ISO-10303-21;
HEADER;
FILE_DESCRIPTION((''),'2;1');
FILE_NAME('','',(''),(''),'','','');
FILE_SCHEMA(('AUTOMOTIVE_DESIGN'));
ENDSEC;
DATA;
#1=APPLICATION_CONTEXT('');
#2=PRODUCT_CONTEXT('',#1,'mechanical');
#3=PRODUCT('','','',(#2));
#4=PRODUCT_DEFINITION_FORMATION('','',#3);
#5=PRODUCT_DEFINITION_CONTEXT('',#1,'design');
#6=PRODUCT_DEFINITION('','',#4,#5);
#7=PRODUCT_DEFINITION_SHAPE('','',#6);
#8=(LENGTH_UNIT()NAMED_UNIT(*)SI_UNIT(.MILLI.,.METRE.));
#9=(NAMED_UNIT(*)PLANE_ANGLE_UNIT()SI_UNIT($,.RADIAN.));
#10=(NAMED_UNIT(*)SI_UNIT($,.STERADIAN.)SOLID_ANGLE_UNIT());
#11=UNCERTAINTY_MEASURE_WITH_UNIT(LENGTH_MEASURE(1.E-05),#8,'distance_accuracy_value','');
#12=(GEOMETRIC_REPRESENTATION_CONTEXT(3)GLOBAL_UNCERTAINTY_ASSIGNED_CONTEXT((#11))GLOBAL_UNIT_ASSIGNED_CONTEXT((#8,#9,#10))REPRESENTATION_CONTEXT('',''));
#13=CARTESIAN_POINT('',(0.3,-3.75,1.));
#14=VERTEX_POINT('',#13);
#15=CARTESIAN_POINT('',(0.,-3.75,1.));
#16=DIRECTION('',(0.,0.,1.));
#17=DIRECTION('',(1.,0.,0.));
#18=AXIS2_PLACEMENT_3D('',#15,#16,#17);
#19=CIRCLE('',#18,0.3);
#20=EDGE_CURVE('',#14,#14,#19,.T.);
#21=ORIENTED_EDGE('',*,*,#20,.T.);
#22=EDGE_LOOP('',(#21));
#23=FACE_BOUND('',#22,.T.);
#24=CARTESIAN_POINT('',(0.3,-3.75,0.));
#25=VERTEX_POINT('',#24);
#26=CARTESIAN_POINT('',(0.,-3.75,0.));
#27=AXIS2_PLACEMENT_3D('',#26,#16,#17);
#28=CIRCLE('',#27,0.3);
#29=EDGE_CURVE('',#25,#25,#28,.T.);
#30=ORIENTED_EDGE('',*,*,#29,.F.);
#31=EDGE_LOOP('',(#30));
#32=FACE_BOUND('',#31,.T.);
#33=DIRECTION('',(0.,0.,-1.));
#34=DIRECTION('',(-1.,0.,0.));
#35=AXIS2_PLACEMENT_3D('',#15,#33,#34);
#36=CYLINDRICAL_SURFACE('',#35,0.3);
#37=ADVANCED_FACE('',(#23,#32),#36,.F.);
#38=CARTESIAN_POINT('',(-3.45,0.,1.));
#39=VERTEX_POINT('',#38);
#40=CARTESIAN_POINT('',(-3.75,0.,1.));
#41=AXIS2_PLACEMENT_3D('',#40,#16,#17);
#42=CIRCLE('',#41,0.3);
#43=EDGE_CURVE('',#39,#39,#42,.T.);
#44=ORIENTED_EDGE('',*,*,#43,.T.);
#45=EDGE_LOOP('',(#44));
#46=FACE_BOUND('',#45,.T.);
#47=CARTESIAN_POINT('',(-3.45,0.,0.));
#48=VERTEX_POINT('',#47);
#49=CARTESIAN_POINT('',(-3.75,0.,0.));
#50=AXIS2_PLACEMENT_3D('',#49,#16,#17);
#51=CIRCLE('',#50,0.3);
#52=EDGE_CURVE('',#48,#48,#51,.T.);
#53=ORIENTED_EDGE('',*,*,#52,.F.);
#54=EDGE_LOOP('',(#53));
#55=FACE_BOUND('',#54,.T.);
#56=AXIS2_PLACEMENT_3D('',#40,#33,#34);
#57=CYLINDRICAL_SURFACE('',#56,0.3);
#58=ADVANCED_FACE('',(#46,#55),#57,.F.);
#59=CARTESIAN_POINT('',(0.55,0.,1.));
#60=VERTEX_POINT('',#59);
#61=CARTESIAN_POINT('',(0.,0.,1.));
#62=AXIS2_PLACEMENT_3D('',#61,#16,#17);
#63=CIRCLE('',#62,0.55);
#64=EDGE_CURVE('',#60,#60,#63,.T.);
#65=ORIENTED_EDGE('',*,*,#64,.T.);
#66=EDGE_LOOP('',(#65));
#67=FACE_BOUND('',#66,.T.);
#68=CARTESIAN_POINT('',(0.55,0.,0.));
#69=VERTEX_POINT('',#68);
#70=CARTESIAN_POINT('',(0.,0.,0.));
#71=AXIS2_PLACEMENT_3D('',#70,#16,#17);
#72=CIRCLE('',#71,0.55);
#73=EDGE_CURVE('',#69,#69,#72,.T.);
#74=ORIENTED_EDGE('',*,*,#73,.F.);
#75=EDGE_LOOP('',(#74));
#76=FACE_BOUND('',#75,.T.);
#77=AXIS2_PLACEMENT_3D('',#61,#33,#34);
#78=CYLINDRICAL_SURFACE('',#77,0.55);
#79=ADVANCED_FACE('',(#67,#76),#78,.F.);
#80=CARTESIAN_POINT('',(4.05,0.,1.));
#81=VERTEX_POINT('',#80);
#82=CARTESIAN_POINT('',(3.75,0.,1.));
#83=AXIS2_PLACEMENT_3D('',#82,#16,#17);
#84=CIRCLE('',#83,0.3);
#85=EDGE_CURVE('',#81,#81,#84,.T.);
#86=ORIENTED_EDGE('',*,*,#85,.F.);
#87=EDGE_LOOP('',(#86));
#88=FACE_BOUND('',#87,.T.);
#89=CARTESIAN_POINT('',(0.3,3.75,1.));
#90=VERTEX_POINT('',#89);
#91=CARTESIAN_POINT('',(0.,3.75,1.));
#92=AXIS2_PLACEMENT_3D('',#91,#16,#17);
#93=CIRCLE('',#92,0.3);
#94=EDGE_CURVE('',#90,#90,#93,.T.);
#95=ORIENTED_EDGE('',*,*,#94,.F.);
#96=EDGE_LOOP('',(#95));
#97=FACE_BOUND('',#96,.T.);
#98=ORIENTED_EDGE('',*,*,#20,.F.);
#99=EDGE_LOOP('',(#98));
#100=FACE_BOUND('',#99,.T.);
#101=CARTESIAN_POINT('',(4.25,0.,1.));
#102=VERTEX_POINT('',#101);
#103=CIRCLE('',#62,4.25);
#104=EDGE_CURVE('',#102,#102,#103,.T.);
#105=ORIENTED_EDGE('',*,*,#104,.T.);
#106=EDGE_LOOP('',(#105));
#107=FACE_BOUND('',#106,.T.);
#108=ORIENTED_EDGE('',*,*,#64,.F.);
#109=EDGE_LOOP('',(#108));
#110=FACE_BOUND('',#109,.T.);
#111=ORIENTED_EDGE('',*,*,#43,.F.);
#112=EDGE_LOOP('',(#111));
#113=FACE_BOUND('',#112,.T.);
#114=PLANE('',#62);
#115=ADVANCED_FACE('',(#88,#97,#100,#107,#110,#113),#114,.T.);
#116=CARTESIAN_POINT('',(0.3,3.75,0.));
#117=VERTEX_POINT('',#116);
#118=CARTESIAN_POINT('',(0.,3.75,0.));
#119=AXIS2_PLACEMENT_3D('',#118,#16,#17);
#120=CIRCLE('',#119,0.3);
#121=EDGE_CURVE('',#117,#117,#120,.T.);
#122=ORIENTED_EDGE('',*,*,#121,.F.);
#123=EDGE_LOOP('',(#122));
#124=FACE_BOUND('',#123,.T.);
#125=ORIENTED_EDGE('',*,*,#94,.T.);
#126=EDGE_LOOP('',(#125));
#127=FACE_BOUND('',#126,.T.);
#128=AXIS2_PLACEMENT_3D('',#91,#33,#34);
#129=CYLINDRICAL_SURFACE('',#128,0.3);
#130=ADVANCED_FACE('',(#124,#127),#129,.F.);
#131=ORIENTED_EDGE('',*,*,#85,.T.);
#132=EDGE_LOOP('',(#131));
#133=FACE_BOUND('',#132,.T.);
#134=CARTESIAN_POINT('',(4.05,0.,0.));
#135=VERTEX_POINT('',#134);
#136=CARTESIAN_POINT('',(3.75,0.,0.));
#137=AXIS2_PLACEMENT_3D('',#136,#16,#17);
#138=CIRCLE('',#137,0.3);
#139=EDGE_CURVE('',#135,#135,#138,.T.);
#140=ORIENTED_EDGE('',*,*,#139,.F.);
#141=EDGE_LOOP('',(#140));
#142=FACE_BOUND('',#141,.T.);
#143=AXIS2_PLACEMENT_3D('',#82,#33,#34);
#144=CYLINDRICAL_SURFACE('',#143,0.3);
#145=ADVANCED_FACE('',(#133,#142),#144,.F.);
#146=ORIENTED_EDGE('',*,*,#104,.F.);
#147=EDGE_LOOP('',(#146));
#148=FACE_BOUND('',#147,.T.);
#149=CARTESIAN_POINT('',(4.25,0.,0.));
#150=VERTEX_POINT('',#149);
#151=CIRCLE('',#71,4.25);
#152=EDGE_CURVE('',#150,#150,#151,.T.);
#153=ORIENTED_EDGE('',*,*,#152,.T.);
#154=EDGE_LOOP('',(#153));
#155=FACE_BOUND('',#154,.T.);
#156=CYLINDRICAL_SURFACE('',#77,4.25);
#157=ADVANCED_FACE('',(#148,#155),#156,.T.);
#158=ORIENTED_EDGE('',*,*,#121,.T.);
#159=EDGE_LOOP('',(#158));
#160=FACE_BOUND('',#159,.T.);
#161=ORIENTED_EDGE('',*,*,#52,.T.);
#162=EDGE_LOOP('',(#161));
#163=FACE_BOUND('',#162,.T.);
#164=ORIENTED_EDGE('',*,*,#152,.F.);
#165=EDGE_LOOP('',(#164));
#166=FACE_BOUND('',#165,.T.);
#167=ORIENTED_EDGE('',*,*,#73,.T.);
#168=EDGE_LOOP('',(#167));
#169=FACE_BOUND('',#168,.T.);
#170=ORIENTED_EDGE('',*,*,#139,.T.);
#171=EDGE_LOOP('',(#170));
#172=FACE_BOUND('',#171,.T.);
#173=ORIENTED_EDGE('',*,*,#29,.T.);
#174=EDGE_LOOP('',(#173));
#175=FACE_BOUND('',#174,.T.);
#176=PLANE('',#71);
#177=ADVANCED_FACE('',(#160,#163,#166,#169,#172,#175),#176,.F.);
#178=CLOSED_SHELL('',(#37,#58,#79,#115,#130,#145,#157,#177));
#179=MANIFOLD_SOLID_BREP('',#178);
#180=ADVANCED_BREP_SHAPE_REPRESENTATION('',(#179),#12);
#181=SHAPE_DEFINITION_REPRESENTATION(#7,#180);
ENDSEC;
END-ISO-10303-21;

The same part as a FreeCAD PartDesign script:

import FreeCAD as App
import Part
import Sketcher

V = App.Vector
Q = App.Units.Quantity

doc = App.newDocument("Part")
body = doc.addObject("PartDesign::Body", "Body")

# Sketch on XY plane
sketch1 = body.newObject("Sketcher::SketchObject", "Sketch")
sketch1.AttachmentSupport = (doc.getObject("XY_Plane"), [""])
sketch1.MapMode = "FlatFace"
sketch1.addGeometry(Part.Circle(V(0, 0, 0), V(0, 0, 1), 4.25), False)
sketch1.addGeometry(Part.Circle(V(0, -3.75, 0), V(0, 0, 1), 0.3), False)
sketch1.addGeometry(Part.Circle(V(-3.75, 0, 0), V(0, 0, 1), 0.3), False)
sketch1.addGeometry(Part.Circle(V(0, 0, 0), V(0, 0, 1), 0.55), False)
sketch1.addGeometry(Part.Circle(V(0, 3.75, 0), V(0, 0, 1), 0.3), False)
sketch1.addGeometry(Part.Circle(V(3.75, 0, 0), V(0, 0, 1), 0.3), False)
sketch1.addConstraint(Sketcher.Constraint("Coincident", 0, 3, -1, 1))
sketch1.addConstraint(Sketcher.Constraint("Coincident", 3, 3, -1, 1))
sketch1.addConstraint(Sketcher.Constraint("Equal", 1, 2))
sketch1.addConstraint(Sketcher.Constraint("Equal", 2, 4))
sketch1.addConstraint(Sketcher.Constraint("Equal", 4, 5))
sketch1.addConstraint(Sketcher.Constraint("Symmetric", 1, 3, 4, 3, -1, 1))
sketch1.addConstraint(Sketcher.Constraint("Symmetric", 2, 3, 5, 3, -1, 1))
sketch1.addConstraint(Sketcher.Constraint("PointOnObject", 1, 3, -2))
sketch1.addConstraint(Sketcher.Constraint("PointOnObject", 2, 3, -1))
sketch1.addConstraint(Sketcher.Constraint("Diameter", 0, Q("8.5 mm")))
sketch1.addConstraint(Sketcher.Constraint("Diameter", 1, Q("0.6 mm")))
sketch1.addConstraint(Sketcher.Constraint("Diameter", 3, Q("1.1 mm")))
sketch1.addConstraint(Sketcher.Constraint("DistanceY", 1, 3, 4, 3, Q("7.5 mm")))
sketch1.addConstraint(Sketcher.Constraint("DistanceX", 2, 3, 5, 3, Q("7.5 mm")))
pad1 = body.newObject("PartDesign::Pad", "Pad")
pad1.Profile = sketch1
pad1.Length = 1

doc.recompute()
